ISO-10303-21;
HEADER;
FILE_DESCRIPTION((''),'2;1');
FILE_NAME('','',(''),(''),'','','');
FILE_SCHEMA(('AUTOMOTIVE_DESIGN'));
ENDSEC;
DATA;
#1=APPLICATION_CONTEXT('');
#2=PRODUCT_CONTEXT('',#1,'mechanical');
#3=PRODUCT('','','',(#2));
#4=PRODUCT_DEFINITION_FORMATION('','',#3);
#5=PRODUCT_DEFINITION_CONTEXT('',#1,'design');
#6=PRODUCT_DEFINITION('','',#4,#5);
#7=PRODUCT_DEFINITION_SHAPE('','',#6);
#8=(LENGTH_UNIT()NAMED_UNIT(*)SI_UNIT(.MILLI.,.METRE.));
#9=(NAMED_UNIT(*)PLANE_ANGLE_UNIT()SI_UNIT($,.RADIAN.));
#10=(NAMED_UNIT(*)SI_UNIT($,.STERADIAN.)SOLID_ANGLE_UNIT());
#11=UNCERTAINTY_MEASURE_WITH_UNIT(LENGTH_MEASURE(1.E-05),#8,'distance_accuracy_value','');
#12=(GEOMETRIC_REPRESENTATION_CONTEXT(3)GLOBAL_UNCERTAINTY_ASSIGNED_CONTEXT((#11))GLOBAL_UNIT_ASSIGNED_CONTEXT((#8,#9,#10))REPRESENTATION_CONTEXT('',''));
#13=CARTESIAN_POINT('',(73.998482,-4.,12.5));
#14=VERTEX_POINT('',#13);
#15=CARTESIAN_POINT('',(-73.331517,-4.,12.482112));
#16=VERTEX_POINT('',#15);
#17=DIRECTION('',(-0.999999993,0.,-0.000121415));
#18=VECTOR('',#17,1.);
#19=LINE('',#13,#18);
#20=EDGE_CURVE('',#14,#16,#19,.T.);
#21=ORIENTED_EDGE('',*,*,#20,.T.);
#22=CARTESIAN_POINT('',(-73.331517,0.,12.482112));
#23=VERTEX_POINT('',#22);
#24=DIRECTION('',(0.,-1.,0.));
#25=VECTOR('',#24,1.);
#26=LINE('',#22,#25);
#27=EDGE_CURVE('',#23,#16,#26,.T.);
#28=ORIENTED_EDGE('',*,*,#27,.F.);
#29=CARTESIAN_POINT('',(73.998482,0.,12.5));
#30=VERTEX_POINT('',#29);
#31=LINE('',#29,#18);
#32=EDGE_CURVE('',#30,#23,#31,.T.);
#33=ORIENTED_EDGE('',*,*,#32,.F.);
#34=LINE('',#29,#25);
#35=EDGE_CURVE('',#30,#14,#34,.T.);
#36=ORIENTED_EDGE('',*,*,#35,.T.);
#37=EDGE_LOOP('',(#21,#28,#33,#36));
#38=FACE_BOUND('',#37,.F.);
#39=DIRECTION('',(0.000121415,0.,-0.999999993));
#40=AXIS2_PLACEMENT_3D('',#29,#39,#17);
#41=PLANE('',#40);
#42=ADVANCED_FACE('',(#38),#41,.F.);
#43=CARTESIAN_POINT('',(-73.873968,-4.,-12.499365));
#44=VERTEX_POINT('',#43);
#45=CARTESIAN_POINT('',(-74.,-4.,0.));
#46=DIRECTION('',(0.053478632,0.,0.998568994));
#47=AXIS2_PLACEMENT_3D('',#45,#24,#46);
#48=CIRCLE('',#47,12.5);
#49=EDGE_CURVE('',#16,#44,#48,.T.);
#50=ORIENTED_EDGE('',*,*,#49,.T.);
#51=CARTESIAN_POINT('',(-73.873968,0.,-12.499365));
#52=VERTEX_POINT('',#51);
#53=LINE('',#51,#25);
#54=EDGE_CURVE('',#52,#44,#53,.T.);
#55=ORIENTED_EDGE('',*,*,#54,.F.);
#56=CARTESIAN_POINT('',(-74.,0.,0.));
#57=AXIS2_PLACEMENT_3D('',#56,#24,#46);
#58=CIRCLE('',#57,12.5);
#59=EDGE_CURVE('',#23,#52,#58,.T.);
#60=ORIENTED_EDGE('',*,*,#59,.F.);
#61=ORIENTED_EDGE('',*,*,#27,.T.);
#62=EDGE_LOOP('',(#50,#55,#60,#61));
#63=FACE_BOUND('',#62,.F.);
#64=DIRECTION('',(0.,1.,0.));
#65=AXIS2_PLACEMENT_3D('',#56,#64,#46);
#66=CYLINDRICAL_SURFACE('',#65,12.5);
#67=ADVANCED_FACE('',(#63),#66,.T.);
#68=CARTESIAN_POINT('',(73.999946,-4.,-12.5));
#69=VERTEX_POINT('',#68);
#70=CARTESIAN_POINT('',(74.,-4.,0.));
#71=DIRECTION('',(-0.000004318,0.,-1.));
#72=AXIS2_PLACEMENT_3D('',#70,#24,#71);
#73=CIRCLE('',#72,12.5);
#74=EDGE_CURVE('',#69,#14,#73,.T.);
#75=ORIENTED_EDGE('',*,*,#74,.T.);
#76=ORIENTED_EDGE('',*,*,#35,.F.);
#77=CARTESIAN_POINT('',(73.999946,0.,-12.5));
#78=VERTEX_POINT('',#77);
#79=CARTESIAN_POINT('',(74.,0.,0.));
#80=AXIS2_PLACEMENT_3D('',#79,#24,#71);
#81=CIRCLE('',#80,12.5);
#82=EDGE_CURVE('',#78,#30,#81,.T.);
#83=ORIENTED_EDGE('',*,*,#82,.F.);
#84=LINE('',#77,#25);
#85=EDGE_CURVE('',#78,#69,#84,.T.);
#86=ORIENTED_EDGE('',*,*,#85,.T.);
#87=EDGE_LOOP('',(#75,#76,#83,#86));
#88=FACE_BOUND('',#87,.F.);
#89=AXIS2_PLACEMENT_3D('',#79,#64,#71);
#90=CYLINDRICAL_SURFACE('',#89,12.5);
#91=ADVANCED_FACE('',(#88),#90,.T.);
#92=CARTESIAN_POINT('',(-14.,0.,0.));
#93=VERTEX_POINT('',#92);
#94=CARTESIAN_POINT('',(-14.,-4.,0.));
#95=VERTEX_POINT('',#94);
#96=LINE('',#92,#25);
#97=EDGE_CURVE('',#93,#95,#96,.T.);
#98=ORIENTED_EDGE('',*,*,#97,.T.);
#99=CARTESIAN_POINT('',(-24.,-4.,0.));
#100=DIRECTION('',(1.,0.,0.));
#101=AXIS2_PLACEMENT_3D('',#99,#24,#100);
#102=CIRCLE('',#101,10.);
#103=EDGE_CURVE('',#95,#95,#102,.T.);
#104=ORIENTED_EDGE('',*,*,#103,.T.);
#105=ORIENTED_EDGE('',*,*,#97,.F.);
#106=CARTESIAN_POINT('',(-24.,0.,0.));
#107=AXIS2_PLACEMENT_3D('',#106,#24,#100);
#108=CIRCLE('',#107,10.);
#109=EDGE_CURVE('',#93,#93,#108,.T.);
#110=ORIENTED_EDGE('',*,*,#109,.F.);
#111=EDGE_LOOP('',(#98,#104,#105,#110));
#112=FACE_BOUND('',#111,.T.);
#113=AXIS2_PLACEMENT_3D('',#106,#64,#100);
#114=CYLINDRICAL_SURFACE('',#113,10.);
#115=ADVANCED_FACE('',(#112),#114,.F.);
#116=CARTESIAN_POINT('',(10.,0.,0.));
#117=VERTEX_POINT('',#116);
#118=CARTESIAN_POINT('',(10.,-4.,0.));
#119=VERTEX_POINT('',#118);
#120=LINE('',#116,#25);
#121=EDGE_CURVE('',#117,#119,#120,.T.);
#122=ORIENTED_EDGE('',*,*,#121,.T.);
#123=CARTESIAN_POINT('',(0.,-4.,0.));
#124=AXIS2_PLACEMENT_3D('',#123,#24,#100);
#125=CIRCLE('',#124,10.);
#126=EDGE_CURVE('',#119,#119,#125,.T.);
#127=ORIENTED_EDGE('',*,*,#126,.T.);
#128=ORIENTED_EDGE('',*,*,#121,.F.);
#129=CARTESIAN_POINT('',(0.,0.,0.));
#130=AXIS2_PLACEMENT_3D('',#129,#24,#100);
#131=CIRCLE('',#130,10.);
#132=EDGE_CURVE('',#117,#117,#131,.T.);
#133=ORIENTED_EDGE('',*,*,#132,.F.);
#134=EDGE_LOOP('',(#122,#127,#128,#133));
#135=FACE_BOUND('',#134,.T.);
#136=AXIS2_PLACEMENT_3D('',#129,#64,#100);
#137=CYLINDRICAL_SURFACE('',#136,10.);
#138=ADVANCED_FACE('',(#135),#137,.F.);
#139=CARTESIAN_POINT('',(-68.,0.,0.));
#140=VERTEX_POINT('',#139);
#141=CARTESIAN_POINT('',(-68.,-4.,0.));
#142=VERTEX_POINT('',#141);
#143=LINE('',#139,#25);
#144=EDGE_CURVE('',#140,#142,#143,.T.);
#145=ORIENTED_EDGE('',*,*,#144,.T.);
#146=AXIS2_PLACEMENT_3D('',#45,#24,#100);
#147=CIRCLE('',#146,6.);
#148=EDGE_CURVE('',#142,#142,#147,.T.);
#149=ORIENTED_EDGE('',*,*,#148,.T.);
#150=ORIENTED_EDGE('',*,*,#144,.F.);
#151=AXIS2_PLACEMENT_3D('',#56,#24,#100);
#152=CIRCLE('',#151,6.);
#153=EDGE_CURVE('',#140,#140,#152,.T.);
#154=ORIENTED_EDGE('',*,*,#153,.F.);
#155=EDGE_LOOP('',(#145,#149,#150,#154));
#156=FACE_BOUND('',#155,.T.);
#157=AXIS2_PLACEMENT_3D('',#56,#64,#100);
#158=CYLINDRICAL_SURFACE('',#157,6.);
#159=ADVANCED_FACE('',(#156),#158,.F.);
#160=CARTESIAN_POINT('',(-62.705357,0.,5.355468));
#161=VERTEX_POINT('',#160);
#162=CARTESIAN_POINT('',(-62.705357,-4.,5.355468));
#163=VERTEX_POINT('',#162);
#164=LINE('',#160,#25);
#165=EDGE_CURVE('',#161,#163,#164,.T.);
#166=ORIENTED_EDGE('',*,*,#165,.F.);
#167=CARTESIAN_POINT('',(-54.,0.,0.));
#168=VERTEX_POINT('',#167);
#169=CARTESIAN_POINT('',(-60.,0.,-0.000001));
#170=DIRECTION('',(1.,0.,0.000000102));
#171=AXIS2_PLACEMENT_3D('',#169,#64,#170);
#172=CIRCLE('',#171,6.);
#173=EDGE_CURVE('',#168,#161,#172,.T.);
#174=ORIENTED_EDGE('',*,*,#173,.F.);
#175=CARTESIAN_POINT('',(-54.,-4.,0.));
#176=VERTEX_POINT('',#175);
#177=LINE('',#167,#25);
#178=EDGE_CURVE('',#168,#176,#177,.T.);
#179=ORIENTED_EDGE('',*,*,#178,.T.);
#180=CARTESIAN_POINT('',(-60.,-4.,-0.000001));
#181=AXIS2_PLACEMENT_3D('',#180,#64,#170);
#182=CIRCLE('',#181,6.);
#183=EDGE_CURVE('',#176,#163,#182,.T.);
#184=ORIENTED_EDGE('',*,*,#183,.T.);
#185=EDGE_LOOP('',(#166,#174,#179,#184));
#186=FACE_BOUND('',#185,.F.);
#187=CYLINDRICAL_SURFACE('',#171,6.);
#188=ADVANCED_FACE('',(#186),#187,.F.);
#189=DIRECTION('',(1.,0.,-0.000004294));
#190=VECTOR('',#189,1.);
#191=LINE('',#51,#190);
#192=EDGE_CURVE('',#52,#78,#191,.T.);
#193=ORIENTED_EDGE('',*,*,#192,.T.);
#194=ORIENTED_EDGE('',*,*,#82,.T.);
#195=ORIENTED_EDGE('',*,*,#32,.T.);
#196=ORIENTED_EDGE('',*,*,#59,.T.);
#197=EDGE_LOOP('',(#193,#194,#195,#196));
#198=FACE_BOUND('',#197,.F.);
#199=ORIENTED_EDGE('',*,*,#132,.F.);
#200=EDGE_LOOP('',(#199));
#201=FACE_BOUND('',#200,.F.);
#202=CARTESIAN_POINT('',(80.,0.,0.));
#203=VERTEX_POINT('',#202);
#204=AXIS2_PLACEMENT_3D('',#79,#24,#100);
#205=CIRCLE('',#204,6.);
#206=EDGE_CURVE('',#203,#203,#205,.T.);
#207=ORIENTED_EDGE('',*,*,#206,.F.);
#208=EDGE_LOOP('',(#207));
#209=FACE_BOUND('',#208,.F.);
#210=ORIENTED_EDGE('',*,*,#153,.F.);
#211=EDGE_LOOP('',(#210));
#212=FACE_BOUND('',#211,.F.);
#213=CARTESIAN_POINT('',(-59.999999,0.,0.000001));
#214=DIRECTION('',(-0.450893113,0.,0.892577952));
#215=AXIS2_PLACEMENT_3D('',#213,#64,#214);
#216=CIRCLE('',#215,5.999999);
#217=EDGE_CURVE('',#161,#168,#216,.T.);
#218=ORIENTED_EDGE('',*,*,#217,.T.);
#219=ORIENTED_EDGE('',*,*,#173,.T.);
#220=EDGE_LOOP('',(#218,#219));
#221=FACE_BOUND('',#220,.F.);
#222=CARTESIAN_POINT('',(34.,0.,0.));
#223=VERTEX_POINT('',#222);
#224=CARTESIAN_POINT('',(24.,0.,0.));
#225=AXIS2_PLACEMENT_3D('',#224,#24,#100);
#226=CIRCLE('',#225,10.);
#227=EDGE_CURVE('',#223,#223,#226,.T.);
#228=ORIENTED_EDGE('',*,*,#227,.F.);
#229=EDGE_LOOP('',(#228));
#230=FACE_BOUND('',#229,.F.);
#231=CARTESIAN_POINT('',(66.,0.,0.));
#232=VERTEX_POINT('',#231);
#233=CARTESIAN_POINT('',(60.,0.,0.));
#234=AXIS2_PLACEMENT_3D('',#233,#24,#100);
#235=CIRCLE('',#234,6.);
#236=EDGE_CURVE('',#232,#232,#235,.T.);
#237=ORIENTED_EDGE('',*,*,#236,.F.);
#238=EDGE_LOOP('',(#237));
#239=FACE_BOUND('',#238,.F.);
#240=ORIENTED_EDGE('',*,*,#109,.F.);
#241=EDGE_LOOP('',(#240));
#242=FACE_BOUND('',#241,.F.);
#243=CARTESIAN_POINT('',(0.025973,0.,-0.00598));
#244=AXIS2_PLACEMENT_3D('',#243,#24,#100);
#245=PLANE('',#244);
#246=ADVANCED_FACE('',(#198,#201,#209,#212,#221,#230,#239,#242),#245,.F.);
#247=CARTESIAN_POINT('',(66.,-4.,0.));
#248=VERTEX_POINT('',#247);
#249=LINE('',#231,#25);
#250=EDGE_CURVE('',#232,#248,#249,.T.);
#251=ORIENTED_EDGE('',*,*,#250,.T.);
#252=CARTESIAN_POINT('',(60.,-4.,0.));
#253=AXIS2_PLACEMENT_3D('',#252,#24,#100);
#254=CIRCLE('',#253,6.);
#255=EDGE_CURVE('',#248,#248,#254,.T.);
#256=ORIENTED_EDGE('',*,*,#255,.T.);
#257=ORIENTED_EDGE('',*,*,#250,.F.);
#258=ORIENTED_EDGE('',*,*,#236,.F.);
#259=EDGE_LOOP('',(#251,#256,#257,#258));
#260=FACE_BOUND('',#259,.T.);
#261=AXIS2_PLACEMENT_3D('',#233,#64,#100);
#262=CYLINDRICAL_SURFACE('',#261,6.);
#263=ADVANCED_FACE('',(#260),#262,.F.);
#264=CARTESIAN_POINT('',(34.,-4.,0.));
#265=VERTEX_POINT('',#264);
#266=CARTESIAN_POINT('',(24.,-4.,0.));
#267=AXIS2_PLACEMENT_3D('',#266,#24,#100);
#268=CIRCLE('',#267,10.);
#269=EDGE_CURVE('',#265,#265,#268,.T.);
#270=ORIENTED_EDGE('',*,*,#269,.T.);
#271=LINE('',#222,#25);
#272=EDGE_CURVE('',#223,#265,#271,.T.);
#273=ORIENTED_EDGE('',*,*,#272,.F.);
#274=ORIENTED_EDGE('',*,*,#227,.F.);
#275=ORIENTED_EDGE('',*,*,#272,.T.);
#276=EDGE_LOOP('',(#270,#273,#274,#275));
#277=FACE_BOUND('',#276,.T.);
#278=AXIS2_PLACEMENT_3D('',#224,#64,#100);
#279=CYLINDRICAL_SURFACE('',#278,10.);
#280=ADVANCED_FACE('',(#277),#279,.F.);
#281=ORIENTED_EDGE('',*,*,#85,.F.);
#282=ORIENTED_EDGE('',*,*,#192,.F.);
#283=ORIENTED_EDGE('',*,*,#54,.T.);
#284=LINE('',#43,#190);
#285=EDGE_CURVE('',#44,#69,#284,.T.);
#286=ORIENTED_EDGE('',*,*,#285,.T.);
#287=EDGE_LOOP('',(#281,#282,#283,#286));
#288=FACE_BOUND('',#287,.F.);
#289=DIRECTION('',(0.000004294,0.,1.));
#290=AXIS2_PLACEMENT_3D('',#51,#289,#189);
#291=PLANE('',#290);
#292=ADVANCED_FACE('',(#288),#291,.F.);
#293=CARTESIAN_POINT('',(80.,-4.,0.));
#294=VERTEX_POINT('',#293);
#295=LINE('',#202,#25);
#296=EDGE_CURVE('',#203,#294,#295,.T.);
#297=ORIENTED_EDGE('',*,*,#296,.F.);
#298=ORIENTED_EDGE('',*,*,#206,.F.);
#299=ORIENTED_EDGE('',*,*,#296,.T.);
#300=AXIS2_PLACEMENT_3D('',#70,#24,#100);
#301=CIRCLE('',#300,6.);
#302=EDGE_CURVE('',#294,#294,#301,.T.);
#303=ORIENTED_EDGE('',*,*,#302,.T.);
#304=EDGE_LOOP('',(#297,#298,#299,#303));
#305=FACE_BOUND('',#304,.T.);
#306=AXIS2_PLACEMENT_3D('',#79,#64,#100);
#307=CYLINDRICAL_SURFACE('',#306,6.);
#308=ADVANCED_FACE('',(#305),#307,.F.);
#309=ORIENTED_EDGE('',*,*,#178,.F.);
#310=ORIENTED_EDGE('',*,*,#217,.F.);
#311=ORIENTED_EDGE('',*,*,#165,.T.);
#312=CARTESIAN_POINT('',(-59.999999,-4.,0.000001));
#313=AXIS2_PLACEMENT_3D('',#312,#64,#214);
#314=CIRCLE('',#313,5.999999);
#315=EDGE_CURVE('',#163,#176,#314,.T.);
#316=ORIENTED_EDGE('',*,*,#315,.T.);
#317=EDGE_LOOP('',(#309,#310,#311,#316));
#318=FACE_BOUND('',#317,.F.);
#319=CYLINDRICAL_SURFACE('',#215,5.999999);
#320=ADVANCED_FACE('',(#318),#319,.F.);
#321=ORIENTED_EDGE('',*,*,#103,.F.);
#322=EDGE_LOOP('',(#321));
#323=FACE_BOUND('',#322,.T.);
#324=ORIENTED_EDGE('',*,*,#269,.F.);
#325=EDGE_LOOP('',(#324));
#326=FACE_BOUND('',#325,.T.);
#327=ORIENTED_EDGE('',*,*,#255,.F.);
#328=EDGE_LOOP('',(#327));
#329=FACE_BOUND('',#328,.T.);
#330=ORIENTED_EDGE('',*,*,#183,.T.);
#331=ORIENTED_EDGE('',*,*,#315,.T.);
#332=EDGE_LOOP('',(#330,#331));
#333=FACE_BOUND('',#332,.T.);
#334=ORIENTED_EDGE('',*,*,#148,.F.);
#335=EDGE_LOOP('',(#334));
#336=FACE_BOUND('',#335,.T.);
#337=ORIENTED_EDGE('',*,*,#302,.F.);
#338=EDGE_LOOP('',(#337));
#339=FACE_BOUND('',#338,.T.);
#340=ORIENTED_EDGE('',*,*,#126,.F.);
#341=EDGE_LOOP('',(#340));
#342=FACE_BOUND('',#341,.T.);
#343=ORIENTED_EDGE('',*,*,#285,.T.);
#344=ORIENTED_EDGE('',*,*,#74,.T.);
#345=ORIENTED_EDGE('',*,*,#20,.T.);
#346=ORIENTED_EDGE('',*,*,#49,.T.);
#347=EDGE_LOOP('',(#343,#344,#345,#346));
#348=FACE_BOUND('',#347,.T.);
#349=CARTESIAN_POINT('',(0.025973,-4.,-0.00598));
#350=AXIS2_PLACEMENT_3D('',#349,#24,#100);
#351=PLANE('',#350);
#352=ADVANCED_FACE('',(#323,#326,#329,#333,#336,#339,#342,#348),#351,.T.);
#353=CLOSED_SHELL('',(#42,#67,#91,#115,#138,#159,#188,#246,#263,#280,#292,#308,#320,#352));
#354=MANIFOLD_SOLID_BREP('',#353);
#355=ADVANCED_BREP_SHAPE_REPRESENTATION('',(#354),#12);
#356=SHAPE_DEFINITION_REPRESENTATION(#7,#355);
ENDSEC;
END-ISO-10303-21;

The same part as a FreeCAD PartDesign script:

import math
import FreeCAD as App
import Part
import Sketcher

V = App.Vector
Q = App.Units.Quantity

doc = App.newDocument("Part")
body = doc.addObject("PartDesign::Body", "Body")

sketch1 = body.newObject("Sketcher::SketchObject", "Sketch")
sketch1.AttachmentSupport = (doc.getObject("XZ_Plane"), [""])
sketch1.MapMode = "FlatFace"
sketch1.addGeometry([
    Part.LineSegment(V(74, 12, 0), V(-73, 12, 0)),
    Part.ArcOfCircle(Part.Circle(V(-74, 0, 0), V(0, 0, 1), 12), math.radians(87), math.radians(271)),
    Part.LineSegment(V(-74, -12, 0), V(74, -12, 0)),
    Part.ArcOfCircle(Part.Circle(V(74, 0, 0), V(0, 0, 1), 13), math.radians(-90), math.radians(90)),
    Part.ArcOfCircle(Part.Circle(V(-60, 0, 0), V(0, 0, 1), 6), math.radians(117), math.radians(360)),
    Part.ArcOfCircle(Part.Circle(V(-60, 0, 0), V(0, 0, 1), 6), math.radians(0), math.radians(117)),
    Part.Circle(V(-74, 0, 0), V(0, 0, 1), 6),
    Part.Circle(V(-24, 0, 0), V(0, 0, 1), 10),
    Part.Circle(V(0, 0, 0), V(0, 0, 1), 10),
    Part.Circle(V(24, 0, 0), V(0, 0, 1), 10),
    Part.Circle(V(60, 0, 0), V(0, 0, 1), 6),
    Part.Circle(V(74, 0, 0), V(0, 0, 1), 6),
], False)
sketch1.addConstraint([
    Sketcher.Constraint("Coincident", 0, 2, 1, 1),
    Sketcher.Constraint("Coincident", 1, 2, 2, 1),
    Sketcher.Constraint("Tangent", 2, 2, 3, 1),
    Sketcher.Constraint("Tangent", 3, 2, 0, 1),
    Sketcher.Constraint("Tangent", 4, 1, 5, 2),
    Sketcher.Constraint("Coincident", 5, 1, 4, 2),
    Sketcher.Constraint("Coincident", 8, 3, -1, 1),
    Sketcher.Constraint("Coincident", 6, 3, 1, 3),
    Sketcher.Constraint("Coincident", 11, 3, 3, 3),
    Sketcher.Constraint("Equal", 1, 3),
    Sketcher.Constraint("Equal", 5, 6),
    Sketcher.Constraint("Equal", 7, 8),
    Sketcher.Constraint("Equal", 8, 9),
    Sketcher.Constraint("Equal", 6, 10),
    Sketcher.Constraint("Equal", 10, 11),
    Sketcher.Constraint("Symmetric", 1, 3, 3, 3, -1, 1),
    Sketcher.Constraint("Symmetric", 7, 3, 9, 3, -1, 1),
    Sketcher.Constraint("Symmetric", 4, 3, 10, 3, -1, 1),
    Sketcher.Constraint("PointOnObject", 1, 3, -1),
    Sketcher.Constraint("PointOnObject", 4, 3, -1),
    Sketcher.Constraint("PointOnObject", 7, 3, -1),
    Sketcher.Constraint("PointOnObject", 5, 1, -1),
    Sketcher.Constraint("Diameter", 6, Q("12 mm")),
    Sketcher.Constraint("Diameter", 7, Q("20 mm")),
    Sketcher.Constraint("Radius", 1, Q("12.5 mm")),
    Sketcher.Constraint("DistanceX", 1, 3, -1, 1, Q("74 mm")),
    Sketcher.Constraint("DistanceX", 4, 3, -1, 1, Q("60 mm")),
    Sketcher.Constraint("DistanceX", 7, 3, -1, 1, Q("24 mm")),
    Sketcher.Constraint("Distance", 0, Q("147.33 mm")),
    Sketcher.Constraint("DistanceY", -1, 1, 4, 1, Q("5.355468 mm")),
    Sketcher.Constraint("DistanceX", 1, 3, 1, 2, Q("0.126032 mm")),
])
pad1 = body.newObject("PartDesign::Pad", "Pad")
pad1.Profile = sketch1
pad1.Length = 4

doc.recompute()
